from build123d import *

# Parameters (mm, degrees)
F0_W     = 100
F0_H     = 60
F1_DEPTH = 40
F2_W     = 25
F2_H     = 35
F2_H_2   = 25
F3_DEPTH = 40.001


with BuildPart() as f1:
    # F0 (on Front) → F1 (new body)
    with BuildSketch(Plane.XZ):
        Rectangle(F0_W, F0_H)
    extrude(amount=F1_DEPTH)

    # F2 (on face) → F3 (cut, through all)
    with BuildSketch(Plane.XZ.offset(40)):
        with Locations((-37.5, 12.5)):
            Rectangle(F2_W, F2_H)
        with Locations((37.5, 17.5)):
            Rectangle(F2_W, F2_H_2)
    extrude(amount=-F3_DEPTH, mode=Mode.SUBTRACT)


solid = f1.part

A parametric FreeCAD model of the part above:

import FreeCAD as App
import Part
import Sketcher
from FreeCAD import Vector
Q = App.Units.Quantity

doc = App.newDocument("Part")
body = doc.addObject("PartDesign::Body", "Body")

# Sketch on XZ plane
sketch1 = body.newObject("Sketcher::SketchObject", "Sketch")
sketch1.AttachmentSupport = (doc.getObject("XZ_Plane"), [""])
sketch1.MapMode = "FlatFace"
sketch1.addGeometry(Part.LineSegment(Vector(-50, 30, 0), Vector(-50, -30, 0)), False)
sketch1.addGeometry(Part.LineSegment(Vector(-50, -30, 0), Vector(50, -30, 0)), False)
sketch1.addGeometry(Part.LineSegment(Vector(50, -30, 0), Vector(50, 30, 0)), False)
sketch1.addGeometry(Part.LineSegment(Vector(50, 30, 0), Vector(-50, 30, 0)), False)
sketch1.addConstraint(Sketcher.Constraint("Coincident", 0, 2, 1, 1))
sketch1.addConstraint(Sketcher.Constraint("Coincident", 1, 2, 2, 1))
sketch1.addConstraint(Sketcher.Constraint("Coincident", 2, 2, 3, 1))
sketch1.addConstraint(Sketcher.Constraint("Coincident", 3, 2, 0, 1))
sketch1.addConstraint(Sketcher.Constraint("Vertical", 0))
sketch1.addConstraint(Sketcher.Constraint("Horizontal", 1))
sketch1.addConstraint(Sketcher.Constraint("Vertical", 2))
sketch1.addConstraint(Sketcher.Constraint("Horizontal", 3))
sketch1.addConstraint(Sketcher.Constraint("Symmetric", 0, 2, 2, 2, -1, 1))
sketch1.addConstraint(Sketcher.Constraint("DistanceX", 1, 1, 1, 2, Q("100 mm")))
sketch1.addConstraint(Sketcher.Constraint("DistanceY", 0, 2, 0, 1, Q("60 mm")))
pad1 = body.newObject("PartDesign::Pad", "Pad")
pad1.Profile = sketch1
pad1.Length = 40

# Sketch on XZ plane
sketch2 = body.newObject("Sketcher::SketchObject", "Sketch001")
sketch2.AttachmentSupport = (doc.getObject("XZ_Plane"), [""])
sketch2.MapMode = "FlatFace"
sketch2.AttachmentOffset = App.Placement(Vector(0, 0, 40), App.Rotation())
sketch2.addGeometry(Part.LineSegment(Vector(-50, 30, 0), Vector(-50, -5, 0)), False)
sketch2.addGeometry(Part.LineSegment(Vector(-50, -5, 0), Vector(-25, -5, 0)), False)
sketch2.addGeometry(Part.LineSegment(Vector(-25, -5, 0), Vector(-25, 30, 0)), False)
sketch2.addGeometry(Part.LineSegment(Vector(-25, 30, 0), Vector(-50, 30, 0)), False)
sketch2.addGeometry(Part.LineSegment(Vector(25, 30, 0), Vector(25, 5, 0)), False)
sketch2.addGeometry(Part.LineSegment(Vector(25, 5, 0), Vector(50, 5, 0)), False)
sketch2.addGeometry(Part.LineSegment(Vector(50, 5, 0), Vector(50, 30, 0)), False)
sketch2.addGeometry(Part.LineSegment(Vector(50, 30, 0), Vector(25, 30, 0)), False)
sketch2.addConstraint(Sketcher.Constraint("Coincident", 0, 2, 1, 1))
sketch2.addConstraint(Sketcher.Constraint("Coincident", 1, 2, 2, 1))
sketch2.addConstraint(Sketcher.Constraint("Coincident", 2, 2, 3, 1))
sketch2.addConstraint(Sketcher.Constraint("Coincident", 3, 2, 0, 1))
sketch2.addConstraint(Sketcher.Constraint("Coincident", 4, 2, 5, 1))
sketch2.addConstraint(Sketcher.Constraint("Coincident", 5, 2, 6, 1))
sketch2.addConstraint(Sketcher.Constraint("Coincident", 6, 2, 7, 1))
sketch2.addConstraint(Sketcher.Constraint("Coincident", 7, 2, 4, 1))
sketch2.addConstraint(Sketcher.Constraint("Vertical", 0))
sketch2.addConstraint(Sketcher.Constraint("Horizontal", 1))
sketch2.addConstraint(Sketcher.Constraint("Vertical", 2))
sketch2.addConstraint(Sketcher.Constraint("Horizontal", 3))
sketch2.addConstraint(Sketcher.Constraint("Vertical", 4))
sketch2.addConstraint(Sketcher.Constraint("Horizontal", 5))
sketch2.addConstraint(Sketcher.Constraint("Vertical", 6))
sketch2.addConstraint(Sketcher.Constraint("Horizontal", 7))
sketch2.addConstraint(Sketcher.Constraint("Symmetric", 1, 2, 4, 2, -1, 1))
sketch2.addConstraint(Sketcher.Constraint("Symmetric", 3, 2, 6, 2, -2))
sketch2.addConstraint(Sketcher.Constraint("Equal", 7, 4))
sketch2.addConstraint(Sketcher.Constraint("DistanceX", 1, 1, 1, 2, Q("25 mm")))
sketch2.addConstraint(Sketcher.Constraint("DistanceY", 0, 2, 0, 1, Q("35 mm")))
sketch2.addConstraint(Sketcher.Constraint("DistanceX", 0, 2, -1, 1, Q("50 mm")))
pocket1 = body.newObject("PartDesign::Pocket", "Pocket")
pocket1.Profile = sketch2
pocket1.Type = "ThroughAll"

doc.recompute()
